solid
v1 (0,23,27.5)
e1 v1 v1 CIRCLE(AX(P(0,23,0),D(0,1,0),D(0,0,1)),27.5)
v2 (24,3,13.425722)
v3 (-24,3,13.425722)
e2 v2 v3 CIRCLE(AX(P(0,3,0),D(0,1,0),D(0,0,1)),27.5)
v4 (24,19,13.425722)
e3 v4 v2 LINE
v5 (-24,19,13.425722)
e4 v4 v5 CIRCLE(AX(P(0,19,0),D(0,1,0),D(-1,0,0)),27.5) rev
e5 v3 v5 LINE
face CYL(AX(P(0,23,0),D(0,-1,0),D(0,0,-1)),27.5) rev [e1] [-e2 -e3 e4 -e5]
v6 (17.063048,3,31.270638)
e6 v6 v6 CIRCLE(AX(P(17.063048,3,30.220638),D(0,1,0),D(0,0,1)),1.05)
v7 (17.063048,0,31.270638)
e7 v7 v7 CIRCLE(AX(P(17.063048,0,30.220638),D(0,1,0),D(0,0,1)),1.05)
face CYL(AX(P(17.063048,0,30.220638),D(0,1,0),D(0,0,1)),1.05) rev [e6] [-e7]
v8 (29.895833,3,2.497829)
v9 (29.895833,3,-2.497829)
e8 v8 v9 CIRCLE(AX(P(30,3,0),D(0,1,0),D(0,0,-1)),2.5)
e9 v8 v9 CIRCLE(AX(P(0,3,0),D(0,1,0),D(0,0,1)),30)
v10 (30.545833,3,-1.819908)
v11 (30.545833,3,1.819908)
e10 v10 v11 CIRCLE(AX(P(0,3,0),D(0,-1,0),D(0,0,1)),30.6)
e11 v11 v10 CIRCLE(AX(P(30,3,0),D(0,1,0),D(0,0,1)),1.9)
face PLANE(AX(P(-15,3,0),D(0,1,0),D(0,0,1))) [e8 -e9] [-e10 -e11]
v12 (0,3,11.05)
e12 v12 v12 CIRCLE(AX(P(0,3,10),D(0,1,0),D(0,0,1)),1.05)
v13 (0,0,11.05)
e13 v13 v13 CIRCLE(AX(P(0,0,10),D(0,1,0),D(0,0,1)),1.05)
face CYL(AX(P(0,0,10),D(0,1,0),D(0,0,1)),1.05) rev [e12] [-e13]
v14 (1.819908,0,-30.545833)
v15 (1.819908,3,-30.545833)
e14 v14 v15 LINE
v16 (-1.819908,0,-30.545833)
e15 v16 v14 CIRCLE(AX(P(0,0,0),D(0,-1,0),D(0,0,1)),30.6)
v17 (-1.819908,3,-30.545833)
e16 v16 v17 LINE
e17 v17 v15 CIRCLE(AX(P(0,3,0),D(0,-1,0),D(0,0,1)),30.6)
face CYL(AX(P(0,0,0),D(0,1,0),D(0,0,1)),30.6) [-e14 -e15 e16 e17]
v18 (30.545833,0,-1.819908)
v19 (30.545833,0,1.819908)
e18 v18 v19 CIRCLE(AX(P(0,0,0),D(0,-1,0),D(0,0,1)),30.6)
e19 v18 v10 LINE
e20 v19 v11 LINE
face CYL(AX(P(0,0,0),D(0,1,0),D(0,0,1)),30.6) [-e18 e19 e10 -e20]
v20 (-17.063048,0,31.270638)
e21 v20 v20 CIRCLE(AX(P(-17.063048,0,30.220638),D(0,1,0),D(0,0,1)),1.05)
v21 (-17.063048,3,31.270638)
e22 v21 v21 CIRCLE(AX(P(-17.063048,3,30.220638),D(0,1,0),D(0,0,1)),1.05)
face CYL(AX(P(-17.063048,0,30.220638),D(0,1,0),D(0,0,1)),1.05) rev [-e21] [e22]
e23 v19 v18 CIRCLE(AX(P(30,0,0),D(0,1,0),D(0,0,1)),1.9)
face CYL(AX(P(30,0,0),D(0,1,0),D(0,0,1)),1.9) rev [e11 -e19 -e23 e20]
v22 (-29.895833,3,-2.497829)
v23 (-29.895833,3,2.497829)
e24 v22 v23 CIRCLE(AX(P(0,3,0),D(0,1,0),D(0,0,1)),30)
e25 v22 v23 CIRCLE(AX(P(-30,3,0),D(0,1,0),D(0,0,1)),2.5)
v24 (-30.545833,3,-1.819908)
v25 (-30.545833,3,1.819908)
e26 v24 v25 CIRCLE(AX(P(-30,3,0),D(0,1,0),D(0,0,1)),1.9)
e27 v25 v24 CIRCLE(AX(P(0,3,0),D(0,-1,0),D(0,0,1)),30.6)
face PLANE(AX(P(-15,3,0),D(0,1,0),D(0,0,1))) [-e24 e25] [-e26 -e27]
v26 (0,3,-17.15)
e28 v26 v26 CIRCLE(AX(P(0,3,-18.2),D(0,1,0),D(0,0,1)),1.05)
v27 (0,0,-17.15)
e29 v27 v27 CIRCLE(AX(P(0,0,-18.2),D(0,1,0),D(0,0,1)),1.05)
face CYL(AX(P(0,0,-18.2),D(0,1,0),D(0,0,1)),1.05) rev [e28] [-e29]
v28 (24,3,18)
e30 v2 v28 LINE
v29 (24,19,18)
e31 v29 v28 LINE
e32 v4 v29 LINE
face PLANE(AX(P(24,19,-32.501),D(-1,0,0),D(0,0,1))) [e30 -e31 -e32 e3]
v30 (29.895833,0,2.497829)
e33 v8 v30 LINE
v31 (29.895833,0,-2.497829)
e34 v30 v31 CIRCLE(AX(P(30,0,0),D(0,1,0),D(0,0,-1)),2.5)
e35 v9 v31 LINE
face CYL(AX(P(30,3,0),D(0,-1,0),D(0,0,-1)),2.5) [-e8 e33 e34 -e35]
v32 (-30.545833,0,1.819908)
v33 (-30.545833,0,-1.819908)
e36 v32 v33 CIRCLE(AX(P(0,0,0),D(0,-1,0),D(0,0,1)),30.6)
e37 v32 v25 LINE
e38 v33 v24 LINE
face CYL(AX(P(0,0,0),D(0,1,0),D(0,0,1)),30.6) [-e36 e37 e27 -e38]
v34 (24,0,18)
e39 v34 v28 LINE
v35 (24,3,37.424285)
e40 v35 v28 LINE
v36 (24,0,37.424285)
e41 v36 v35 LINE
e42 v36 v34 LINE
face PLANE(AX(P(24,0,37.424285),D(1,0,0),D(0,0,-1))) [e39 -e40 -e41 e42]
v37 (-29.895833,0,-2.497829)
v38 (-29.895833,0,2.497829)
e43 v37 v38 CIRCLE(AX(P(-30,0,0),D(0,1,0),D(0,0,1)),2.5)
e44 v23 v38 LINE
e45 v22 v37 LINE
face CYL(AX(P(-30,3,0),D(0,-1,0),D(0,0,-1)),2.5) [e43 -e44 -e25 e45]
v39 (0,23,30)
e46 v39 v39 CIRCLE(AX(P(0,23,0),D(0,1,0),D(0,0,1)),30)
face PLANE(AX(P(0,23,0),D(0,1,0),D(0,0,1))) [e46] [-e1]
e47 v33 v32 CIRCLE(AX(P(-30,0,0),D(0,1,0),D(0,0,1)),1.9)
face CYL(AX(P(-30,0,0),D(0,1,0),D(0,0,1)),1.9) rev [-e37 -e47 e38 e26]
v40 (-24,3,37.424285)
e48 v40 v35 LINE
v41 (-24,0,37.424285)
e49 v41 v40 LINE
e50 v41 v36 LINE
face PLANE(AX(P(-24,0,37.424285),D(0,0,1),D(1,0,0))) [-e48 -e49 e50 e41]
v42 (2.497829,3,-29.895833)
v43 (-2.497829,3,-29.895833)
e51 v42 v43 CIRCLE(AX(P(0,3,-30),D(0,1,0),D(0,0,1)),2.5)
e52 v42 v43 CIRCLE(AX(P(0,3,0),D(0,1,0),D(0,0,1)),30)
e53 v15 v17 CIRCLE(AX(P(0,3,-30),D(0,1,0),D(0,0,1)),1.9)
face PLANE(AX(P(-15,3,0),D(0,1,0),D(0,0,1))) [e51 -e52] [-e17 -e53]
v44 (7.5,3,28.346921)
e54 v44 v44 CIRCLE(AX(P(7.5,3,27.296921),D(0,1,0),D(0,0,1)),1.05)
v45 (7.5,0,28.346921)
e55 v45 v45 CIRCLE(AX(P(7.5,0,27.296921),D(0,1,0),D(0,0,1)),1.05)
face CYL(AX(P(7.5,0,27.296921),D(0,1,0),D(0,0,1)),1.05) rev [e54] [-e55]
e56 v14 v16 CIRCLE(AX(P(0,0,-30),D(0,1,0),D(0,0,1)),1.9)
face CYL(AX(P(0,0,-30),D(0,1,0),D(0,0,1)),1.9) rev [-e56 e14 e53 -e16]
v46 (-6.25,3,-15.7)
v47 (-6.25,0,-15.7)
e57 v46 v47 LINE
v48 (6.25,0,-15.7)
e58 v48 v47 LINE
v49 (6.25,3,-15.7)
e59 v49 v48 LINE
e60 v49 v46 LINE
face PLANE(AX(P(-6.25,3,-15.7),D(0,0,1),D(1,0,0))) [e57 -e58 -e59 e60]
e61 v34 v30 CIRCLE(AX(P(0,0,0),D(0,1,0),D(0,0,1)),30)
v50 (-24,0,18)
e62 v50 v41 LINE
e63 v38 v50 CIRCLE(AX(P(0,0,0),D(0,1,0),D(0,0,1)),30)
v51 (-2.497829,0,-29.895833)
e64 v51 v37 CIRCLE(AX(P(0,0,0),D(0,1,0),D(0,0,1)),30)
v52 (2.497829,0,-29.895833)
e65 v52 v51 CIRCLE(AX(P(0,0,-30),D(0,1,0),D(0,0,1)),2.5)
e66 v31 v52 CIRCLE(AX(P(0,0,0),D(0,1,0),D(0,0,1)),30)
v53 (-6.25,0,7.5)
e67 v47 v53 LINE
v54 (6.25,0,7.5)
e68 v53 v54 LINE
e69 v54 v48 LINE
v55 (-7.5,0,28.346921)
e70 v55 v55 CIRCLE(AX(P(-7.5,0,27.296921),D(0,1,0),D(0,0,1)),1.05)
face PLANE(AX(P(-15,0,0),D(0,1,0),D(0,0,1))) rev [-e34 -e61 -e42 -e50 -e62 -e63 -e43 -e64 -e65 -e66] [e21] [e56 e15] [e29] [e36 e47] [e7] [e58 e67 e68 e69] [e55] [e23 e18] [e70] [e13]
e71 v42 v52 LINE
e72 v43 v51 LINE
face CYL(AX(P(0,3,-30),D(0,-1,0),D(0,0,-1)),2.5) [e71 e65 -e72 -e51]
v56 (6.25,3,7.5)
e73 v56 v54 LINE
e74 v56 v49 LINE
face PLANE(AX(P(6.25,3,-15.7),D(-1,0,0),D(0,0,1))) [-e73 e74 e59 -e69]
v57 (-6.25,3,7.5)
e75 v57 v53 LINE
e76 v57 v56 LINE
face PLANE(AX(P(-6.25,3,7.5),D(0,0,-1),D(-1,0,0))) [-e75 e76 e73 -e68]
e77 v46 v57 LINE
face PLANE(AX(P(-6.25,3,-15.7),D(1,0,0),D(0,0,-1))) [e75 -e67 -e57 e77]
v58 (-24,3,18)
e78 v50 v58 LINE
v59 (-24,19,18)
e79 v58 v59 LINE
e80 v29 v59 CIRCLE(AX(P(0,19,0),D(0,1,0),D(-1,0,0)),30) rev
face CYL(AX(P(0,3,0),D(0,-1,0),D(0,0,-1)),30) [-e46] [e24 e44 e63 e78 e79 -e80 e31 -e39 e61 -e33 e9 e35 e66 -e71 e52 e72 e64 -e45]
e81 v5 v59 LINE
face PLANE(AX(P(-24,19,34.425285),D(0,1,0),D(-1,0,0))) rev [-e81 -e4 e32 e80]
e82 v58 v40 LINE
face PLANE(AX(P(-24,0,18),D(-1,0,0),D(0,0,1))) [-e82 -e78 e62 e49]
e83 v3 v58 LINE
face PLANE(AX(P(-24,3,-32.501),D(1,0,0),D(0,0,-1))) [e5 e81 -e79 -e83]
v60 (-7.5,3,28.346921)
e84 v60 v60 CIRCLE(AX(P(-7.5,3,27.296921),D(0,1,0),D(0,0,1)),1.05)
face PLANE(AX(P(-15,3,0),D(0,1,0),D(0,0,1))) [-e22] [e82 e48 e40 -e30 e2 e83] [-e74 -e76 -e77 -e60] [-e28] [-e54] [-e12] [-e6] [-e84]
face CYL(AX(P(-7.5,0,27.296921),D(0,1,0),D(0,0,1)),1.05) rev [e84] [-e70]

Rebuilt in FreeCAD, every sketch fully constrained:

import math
import FreeCAD as App
import Part
import Sketcher
from FreeCAD import Vector

doc = App.newDocument("Part")
body = doc.addObject("PartDesign::Body", "Body")

# Sketch on XZ plane
sketch1 = body.newObject("Sketcher::SketchObject", "Sketch")
sketch1.AttachmentSupport = (doc.getObject("XZ_Plane"), [""])
sketch1.MapMode = "FlatFace"
sketch1.addGeometry([
    Part.ArcOfCircle(Part.Circle(Vector(0, 0, 0), Vector(0, 0, 1), 30), math.radians(4.776031), math.radians(175.223969)),  # 0
    Part.ArcOfCircle(Part.Circle(Vector(30, 0, 0), Vector(0, 0, 1), 2.5), math.radians(-92.388015), math.radians(92.388015)),  # 1
    Part.ArcOfCircle(Part.Circle(Vector(0, 0, 0), Vector(0, 0, 1), 30), math.radians(-85.223969), math.radians(-4.776031)),  # 2
    Part.ArcOfCircle(Part.Circle(Vector(0, -30, 0), Vector(0, 0, 1), 2.5), math.radians(177.611985), math.radians(362.388015)),  # 3
    Part.ArcOfCircle(Part.Circle(Vector(0, 0, 0), Vector(0, 0, 1), 30), math.radians(-175.223969), math.radians(-94.776031)),  # 4
    Part.ArcOfCircle(Part.Circle(Vector(-30, 0, 0), Vector(0, 0, 1), 2.5), math.radians(87.611985), math.radians(272.388015)),  # 5
    Part.LineSegment(Vector(6.25, 7.5, 0), Vector(-6.25, 7.5, 0)),  # 6
    Part.LineSegment(Vector(-6.25, 7.5, 0), Vector(-6.25, -15.7, 0)),  # 7
    Part.LineSegment(Vector(-6.25, -15.7, 0), Vector(6.25, -15.7, 0)),  # 8
    Part.LineSegment(Vector(6.25, -15.7, 0), Vector(6.25, 7.5, 0)),  # 9
], False)
sketch1.addConstraint([
    Sketcher.Constraint("Coincident", 0, 1, 1, 2),
    Sketcher.Constraint("Coincident", 1, 1, 2, 2),
    Sketcher.Constraint("Coincident", 2, 1, 3, 2),
    Sketcher.Constraint("Coincident", 3, 1, 4, 2),
    Sketcher.Constraint("Coincident", 4, 1, 5, 2),
    Sketcher.Constraint("Coincident", 5, 1, 0, 2),
    Sketcher.Constraint("Coincident", 6, 2, 7, 1),
    Sketcher.Constraint("Coincident", 7, 2, 8, 1),
    Sketcher.Constraint("Coincident", 8, 2, 9, 1),
    Sketcher.Constraint("Coincident", 9, 2, 6, 1),
    Sketcher.Constraint("Horizontal", 6),
    Sketcher.Constraint("Vertical", 7),
    Sketcher.Constraint("Horizontal", 8),
    Sketcher.Constraint("Vertical", 9),
    Sketcher.Constraint("Coincident", 0, 3, -1, 1),
    Sketcher.Constraint("Coincident", 2, 3, -1, 1),
    Sketcher.Constraint("Coincident", 4, 3, -1, 1),
    Sketcher.Constraint("Equal", 0, 2),
    Sketcher.Constraint("Equal", 1, 3),
    Sketcher.Constraint("Equal", 2, 4),
    Sketcher.Constraint("Equal", 3, 5),
    Sketcher.Constraint("Symmetric", 1, 3, 5, 3, -1, 1),
    Sketcher.Constraint("PointOnObject", 1, 3, -1),
    Sketcher.Constraint("PointOnObject", 3, 3, -2),
    Sketcher.Constraint("Radius", 0, 30.0),
    Sketcher.Constraint("Radius", 1, 2.5),
    Sketcher.Constraint("DistanceX", 6, 2, 6, 1, 12.5),
    Sketcher.Constraint("DistanceY", 7, 2, 7, 1, 23.2),
    Sketcher.Constraint("DistanceX", -1, 1, 1, 3, 30.0),
    Sketcher.Constraint("DistanceY", 3, 3, -1, 1, 30.0),
    Sketcher.Constraint("DistanceY", -1, 1, 6, 2, 7.5),
    Sketcher.Constraint("DistanceX", 6, 2, -1, 1, 6.25),
])
pad1 = body.newObject("PartDesign::Pad", "Pad")
pad1.Profile = sketch1
pad1.Length = 3
pad1.Reversed = True

# Sketch on XZ plane
sketch2 = body.newObject("Sketcher::SketchObject", "Sketch001")
sketch2.AttachmentSupport = (doc.getObject("XZ_Plane"), [""])
sketch2.MapMode = "FlatFace"
sketch2.AttachmentOffset = App.Placement(Vector(0, 0, -3), App.Rotation())
sketch2.addGeometry([
    Part.Circle(Vector(0, 0, 0), Vector(0, 0, 1), 30),
    Part.Circle(Vector(0, 0, 0), Vector(0, 0, 1), 27.5),
], False)
sketch2.addConstraint([
    Sketcher.Constraint("Coincident", 0, 3, -1, 1),
    Sketcher.Constraint("Coincident", 1, 3, -1, 1),
    Sketcher.Constraint("Diameter", 0, 60.0),
    Sketcher.Constraint("Diameter", 1, 55.0),
])
pad2 = body.newObject("PartDesign::Pad", "Pad001")
pad2.Profile = sketch2
pad2.Length = 20
pad2.Reversed = True

# Sketch on XZ plane
sketch3 = body.newObject("Sketcher::SketchObject", "Sketch002")
sketch3.AttachmentSupport = (doc.getObject("XZ_Plane"), [""])
sketch3.MapMode = "FlatFace"
sketch3.AttachmentOffset = App.Placement(Vector(0, 0, -3), App.Rotation())
sketch3.addGeometry([
    Part.Circle(Vector(0, -18.2, 0), Vector(0, 0, 1), 1.05),
    Part.Circle(Vector(0, 10, 0), Vector(0, 0, 1), 1.05),
], False)
sketch3.addConstraint([
    Sketcher.Constraint("Equal", 0, 1),
    Sketcher.Constraint("PointOnObject", 0, 3, -2),
    Sketcher.Constraint("PointOnObject", 1, 3, -2),
    Sketcher.Constraint("Diameter", 0, 2.1),
    Sketcher.Constraint("DistanceY", -1, 1, 1, 3, 10.0),
    Sketcher.Constraint("DistanceY", 0, 3, -1, 1, 18.2),
])
pocket1 = body.newObject("PartDesign::Pocket", "Pocket")
pocket1.Profile = sketch3
pocket1.Type = "ThroughAll"
pocket1.Reversed = True

# Sketch on XZ plane
sketch4 = body.newObject("Sketcher::SketchObject", "Sketch003")
sketch4.AttachmentSupport = (doc.getObject("XZ_Plane"), [""])
sketch4.MapMode = "FlatFace"
sketch4.addGeometry([
    Part.LineSegment(Vector(-21, 21.424285, 0), Vector(-21, 34.424285, 0)),
    Part.LineSegment(Vector(-21, 34.424285, 0), Vector(21, 34.424285, 0)),
    Part.LineSegment(Vector(21, 34.424285, 0), Vector(21, 21.424285, 0)),
    Part.ArcOfCircle(Part.Circle(Vector(0, 0, 0), Vector(0, 0, 1), 30), math.radians(45.572996), math.radians(134.427004)),
], False)
sketch4.addConstraint([
    Sketcher.Constraint("Coincident", 0, 2, 1, 1),
    Sketcher.Constraint("Coincident", 1, 2, 2, 1),
    Sketcher.Constraint("Coincident", 2, 2, 3, 1),
    Sketcher.Constraint("Coincident", 3, 2, 0, 1),
    Sketcher.Constraint("Vertical", 0),
    Sketcher.Constraint("Horizontal", 1),
    Sketcher.Constraint("Vertical", 2),
    Sketcher.Constraint("Coincident", 3, 3, -1, 1),
    Sketcher.Constraint("Horizontal", 2, 2, 3, 2),
    Sketcher.Constraint("Radius", 3, 30.0),
    Sketcher.Constraint("DistanceX", 1, 1, 1, 2, 42.0),
    Sketcher.Constraint("DistanceY", 0, 1, 0, 2, 13.0),
])
pad3 = body.newObject("PartDesign::Pad", "Pad002")
pad3.Profile = sketch4
pad3.Length = 3
pad3.Reversed = True

# Sketch on XY plane
sketch5 = body.newObject("Sketcher::SketchObject", "Sketch004")
sketch5.AttachmentSupport = (doc.getObject("XY_Plane"), [""])
sketch5.MapMode = "FlatFace"
sketch5.AttachmentOffset = App.Placement(Vector(0, 0, 30), App.Rotation())
sketch5.addGeometry([
    Part.LineSegment(Vector(24, 19, 0), Vector(24, 3, 0)),
    Part.LineSegment(Vector(24, 3, 0), Vector(-24, 3, 0)),
    Part.LineSegment(Vector(-24, 3, 0), Vector(-24, 19, 0)),
    Part.LineSegment(Vector(-24, 19, 0), Vector(24, 19, 0)),
], False)
sketch5.addConstraint([
    Sketcher.Constraint("Coincident", 0, 2, 1, 1),
    Sketcher.Constraint("Coincident", 1, 2, 2, 1),
    Sketcher.Constraint("Coincident", 2, 2, 3, 1),
    Sketcher.Constraint("Coincident", 3, 2, 0, 1),
    Sketcher.Constraint("Vertical", 0),
    Sketcher.Constraint("Horizontal", 1),
    Sketcher.Constraint("Vertical", 2),
    Sketcher.Constraint("Horizontal", 3),
    Sketcher.Constraint("DistanceX", 1, 2, 1, 1, 48.0),
    Sketcher.Constraint("DistanceY", 0, 2, 0, 1, 16.0),
    Sketcher.Constraint("DistanceX", -1, 1, 0, 2, 24.0),
    Sketcher.Constraint("DistanceY", -1, 1, 0, 2, 3.0),
])
pocket2 = body.newObject("PartDesign::Pocket", "Pocket001")
pocket2.Profile = sketch5
pocket2.Length = 16.574279

# Sketch on XZ plane
sketch6 = body.newObject("Sketcher::SketchObject", "Sketch005")
sketch6.AttachmentSupport = (doc.getObject("XZ_Plane"), [""])
sketch6.MapMode = "FlatFace"
sketch6.AttachmentOffset = App.Placement(Vector(0, 0, -3), App.Rotation())
sketch6.addGeometry([
    Part.ArcOfCircle(Part.Circle(Vector(0, 0, 0), Vector(0, 0, 1), 30.6), math.radians(-93.409628), math.radians(-86.590372)),  # 0
    Part.ArcOfCircle(Part.Circle(Vector(0, -30, 0), Vector(0, 0, 1), 1.9), math.radians(-163.304775), math.radians(-16.695225)),  # 1
    Part.ArcOfCircle(Part.Circle(Vector(0, 0, 0), Vector(0, 0, 1), 30.6), math.radians(-3.409628), math.radians(3.409628)),  # 2
    Part.ArcOfCircle(Part.Circle(Vector(30, 0, 0), Vector(0, 0, 1), 1.9), math.radians(-73.304775), math.radians(73.304775)),  # 3
    Part.ArcOfCircle(Part.Circle(Vector(0, 0, 0), Vector(0, 0, 1), 30.6), math.radians(176.590372), math.radians(183.409628)),  # 4
    Part.ArcOfCircle(Part.Circle(Vector(-30, 0, 0), Vector(0, 0, 1), 1.9), math.radians(106.695225), math.radians(253.304775)),  # 5
], False)
sketch6.addConstraint([
    Sketcher.Constraint("Coincident", 0, 1, 1, 1),
    Sketcher.Constraint("Coincident", 1, 2, 0, 2),
    Sketcher.Constraint("Coincident", 2, 1, 3, 1),
    Sketcher.Constraint("Coincident", 3, 2, 2, 2),
    Sketcher.Constraint("Coincident", 4, 1, 5, 1),
    Sketcher.Constraint("Coincident", 5, 2, 4, 2),
    Sketcher.Constraint("Coincident", 0, 3, -1, 1),
    Sketcher.Constraint("Coincident", 2, 3, -1, 1),
    Sketcher.Constraint("Coincident", 4, 3, -1, 1),
    Sketcher.Constraint("Equal", 0, 2),
    Sketcher.Constraint("Equal", 1, 3),
    Sketcher.Constraint("Equal", 2, 4),
    Sketcher.Constraint("Equal", 3, 5),
    Sketcher.Constraint("Symmetric", 3, 3, 5, 3, -1, 1),
    Sketcher.Constraint("PointOnObject", 1, 3, -2),
    Sketcher.Constraint("PointOnObject", 3, 3, -1),
    Sketcher.Constraint("Radius", 0, 30.6),
    Sketcher.Constraint("Radius", 1, 1.9),
    Sketcher.Constraint("DistanceY", 1, 3, -1, 1, 30.0),
    Sketcher.Constraint("DistanceX", -1, 1, 3, 3, 30.0),
])
pocket3 = body.newObject("PartDesign::Pocket", "Pocket002")
pocket3.Profile = sketch6
pocket3.Type = "ThroughAll"
pocket3.Reversed = True

# Sketch on XZ plane
sketch7 = body.newObject("Sketcher::SketchObject", "Sketch006")
sketch7.AttachmentSupport = (doc.getObject("XZ_Plane"), [""])
sketch7.MapMode = "FlatFace"
sketch7.addGeometry([
    Part.LineSegment(Vector(21, 21.424285, 0), Vector(21, 34.424285, 0)),  # 0
    Part.LineSegment(Vector(21, 34.424285, 0), Vector(-21, 34.424285, 0)),  # 1
    Part.LineSegment(Vector(-21, 34.424285, 0), Vector(-21, 21.424285, 0)),  # 2
    Part.ArcOfCircle(Part.Circle(Vector(0, 0, 0), Vector(0, 0, 1), 30), math.radians(134.427004), math.radians(143.130102)),  # 3
    Part.LineSegment(Vector(-24, 18, 0), Vector(-24, 37.424285, 0)),  # 4
    Part.LineSegment(Vector(-24, 37.424285, 0), Vector(24, 37.424285, 0)),  # 5
    Part.LineSegment(Vector(24, 37.424285, 0), Vector(24, 18, 0)),  # 6
    Part.ArcOfCircle(Part.Circle(Vector(0, 0, 0), Vector(0, 0, 1), 30), math.radians(36.869898), math.radians(45.572996)),  # 7
], False)
sketch7.addConstraint([
    Sketcher.Constraint("Coincident", 0, 2, 1, 1),
    Sketcher.Constraint("Coincident", 1, 2, 2, 1),
    Sketcher.Constraint("Coincident", 2, 2, 3, 1),
    Sketcher.Constraint("Coincident", 3, 2, 4, 1),
    Sketcher.Constraint("Coincident", 4, 2, 5, 1),
    Sketcher.Constraint("Coincident", 5, 2, 6, 1),
    Sketcher.Constraint("Coincident", 6, 2, 7, 1),
    Sketcher.Constraint("Coincident", 7, 2, 0, 1),
    Sketcher.Constraint("Vertical", 0),
    Sketcher.Constraint("Horizontal", 1),
    Sketcher.Constraint("Vertical", 2),
    Sketcher.Constraint("Vertical", 4),
    Sketcher.Constraint("Horizontal", 5),
    Sketcher.Constraint("Vertical", 6),
    Sketcher.Constraint("Coincident", 3, 3, -1, 1),
    Sketcher.Constraint("Coincident", 7, 3, -1, 1),
    Sketcher.Constraint("Equal", 3, 7),
    Sketcher.Constraint("Horizontal", 3, 2, 6, 2),
    Sketcher.Constraint("Horizontal", 2, 2, 7, 2),
    Sketcher.Constraint("Radius", 3, 30.0),
    Sketcher.Constraint("DistanceX", 1, 2, 1, 1, 42.0),
    Sketcher.Constraint("DistanceX", 5, 1, 5, 2, 48.0),
    Sketcher.Constraint("DistanceY", 0, 1, 0, 2, 13.0),
    Sketcher.Constraint("DistanceY", 1, 2, 4, 2, 3.0),
])
pad4 = body.newObject("PartDesign::Pad", "Pad003")
pad4.Profile = sketch7
pad4.Length = 3
pad4.Reversed = True

# Sketch on XZ plane
sketch8 = body.newObject("Sketcher::SketchObject", "Sketch007")
sketch8.AttachmentSupport = (doc.getObject("XZ_Plane"), [""])
sketch8.MapMode = "FlatFace"
sketch8.AttachmentOffset = App.Placement(Vector(0, 0, -3), App.Rotation())
sketch8.addGeometry([
    Part.Circle(Vector(-7.5, 27.296921, 0), Vector(0, 0, 1), 1.05),
    Part.Circle(Vector(-17.063048, 30.220638, 0), Vector(0, 0, 1), 1.05),
    Part.Circle(Vector(7.5, 27.296921, 0), Vector(0, 0, 1), 1.05),
    Part.Circle(Vector(17.063048, 30.220638, 0), Vector(0, 0, 1), 1.05),
], False)
sketch8.addConstraint([
    Sketcher.Constraint("Equal", 0, 1),
    Sketcher.Constraint("Equal", 1, 2),
    Sketcher.Constraint("Equal", 2, 3),
    Sketcher.Constraint("Symmetric", 0, 3, 2, 3, -2),
    Sketcher.Constraint("Symmetric", 1, 3, 3, 3, -2),
    Sketcher.Constraint("Diameter", 0, 2.1),
    Sketcher.Constraint("DistanceX", 0, 3, 2, 3, 15.0),
    Sketcher.Constraint("DistanceY", -1, 1, 0, 3, 27.296921),
    Sketcher.Constraint("DistanceY", -1, 1, 1, 3, 30.220638),
    Sketcher.Constraint("DistanceX", 1, 3, -1, 1, 17.063048),
])
pocket4 = body.newObject("PartDesign::Pocket", "Pocket003")
pocket4.Profile = sketch8
pocket4.Type = "ThroughAll"
pocket4.Reversed = True

doc.recompute()
